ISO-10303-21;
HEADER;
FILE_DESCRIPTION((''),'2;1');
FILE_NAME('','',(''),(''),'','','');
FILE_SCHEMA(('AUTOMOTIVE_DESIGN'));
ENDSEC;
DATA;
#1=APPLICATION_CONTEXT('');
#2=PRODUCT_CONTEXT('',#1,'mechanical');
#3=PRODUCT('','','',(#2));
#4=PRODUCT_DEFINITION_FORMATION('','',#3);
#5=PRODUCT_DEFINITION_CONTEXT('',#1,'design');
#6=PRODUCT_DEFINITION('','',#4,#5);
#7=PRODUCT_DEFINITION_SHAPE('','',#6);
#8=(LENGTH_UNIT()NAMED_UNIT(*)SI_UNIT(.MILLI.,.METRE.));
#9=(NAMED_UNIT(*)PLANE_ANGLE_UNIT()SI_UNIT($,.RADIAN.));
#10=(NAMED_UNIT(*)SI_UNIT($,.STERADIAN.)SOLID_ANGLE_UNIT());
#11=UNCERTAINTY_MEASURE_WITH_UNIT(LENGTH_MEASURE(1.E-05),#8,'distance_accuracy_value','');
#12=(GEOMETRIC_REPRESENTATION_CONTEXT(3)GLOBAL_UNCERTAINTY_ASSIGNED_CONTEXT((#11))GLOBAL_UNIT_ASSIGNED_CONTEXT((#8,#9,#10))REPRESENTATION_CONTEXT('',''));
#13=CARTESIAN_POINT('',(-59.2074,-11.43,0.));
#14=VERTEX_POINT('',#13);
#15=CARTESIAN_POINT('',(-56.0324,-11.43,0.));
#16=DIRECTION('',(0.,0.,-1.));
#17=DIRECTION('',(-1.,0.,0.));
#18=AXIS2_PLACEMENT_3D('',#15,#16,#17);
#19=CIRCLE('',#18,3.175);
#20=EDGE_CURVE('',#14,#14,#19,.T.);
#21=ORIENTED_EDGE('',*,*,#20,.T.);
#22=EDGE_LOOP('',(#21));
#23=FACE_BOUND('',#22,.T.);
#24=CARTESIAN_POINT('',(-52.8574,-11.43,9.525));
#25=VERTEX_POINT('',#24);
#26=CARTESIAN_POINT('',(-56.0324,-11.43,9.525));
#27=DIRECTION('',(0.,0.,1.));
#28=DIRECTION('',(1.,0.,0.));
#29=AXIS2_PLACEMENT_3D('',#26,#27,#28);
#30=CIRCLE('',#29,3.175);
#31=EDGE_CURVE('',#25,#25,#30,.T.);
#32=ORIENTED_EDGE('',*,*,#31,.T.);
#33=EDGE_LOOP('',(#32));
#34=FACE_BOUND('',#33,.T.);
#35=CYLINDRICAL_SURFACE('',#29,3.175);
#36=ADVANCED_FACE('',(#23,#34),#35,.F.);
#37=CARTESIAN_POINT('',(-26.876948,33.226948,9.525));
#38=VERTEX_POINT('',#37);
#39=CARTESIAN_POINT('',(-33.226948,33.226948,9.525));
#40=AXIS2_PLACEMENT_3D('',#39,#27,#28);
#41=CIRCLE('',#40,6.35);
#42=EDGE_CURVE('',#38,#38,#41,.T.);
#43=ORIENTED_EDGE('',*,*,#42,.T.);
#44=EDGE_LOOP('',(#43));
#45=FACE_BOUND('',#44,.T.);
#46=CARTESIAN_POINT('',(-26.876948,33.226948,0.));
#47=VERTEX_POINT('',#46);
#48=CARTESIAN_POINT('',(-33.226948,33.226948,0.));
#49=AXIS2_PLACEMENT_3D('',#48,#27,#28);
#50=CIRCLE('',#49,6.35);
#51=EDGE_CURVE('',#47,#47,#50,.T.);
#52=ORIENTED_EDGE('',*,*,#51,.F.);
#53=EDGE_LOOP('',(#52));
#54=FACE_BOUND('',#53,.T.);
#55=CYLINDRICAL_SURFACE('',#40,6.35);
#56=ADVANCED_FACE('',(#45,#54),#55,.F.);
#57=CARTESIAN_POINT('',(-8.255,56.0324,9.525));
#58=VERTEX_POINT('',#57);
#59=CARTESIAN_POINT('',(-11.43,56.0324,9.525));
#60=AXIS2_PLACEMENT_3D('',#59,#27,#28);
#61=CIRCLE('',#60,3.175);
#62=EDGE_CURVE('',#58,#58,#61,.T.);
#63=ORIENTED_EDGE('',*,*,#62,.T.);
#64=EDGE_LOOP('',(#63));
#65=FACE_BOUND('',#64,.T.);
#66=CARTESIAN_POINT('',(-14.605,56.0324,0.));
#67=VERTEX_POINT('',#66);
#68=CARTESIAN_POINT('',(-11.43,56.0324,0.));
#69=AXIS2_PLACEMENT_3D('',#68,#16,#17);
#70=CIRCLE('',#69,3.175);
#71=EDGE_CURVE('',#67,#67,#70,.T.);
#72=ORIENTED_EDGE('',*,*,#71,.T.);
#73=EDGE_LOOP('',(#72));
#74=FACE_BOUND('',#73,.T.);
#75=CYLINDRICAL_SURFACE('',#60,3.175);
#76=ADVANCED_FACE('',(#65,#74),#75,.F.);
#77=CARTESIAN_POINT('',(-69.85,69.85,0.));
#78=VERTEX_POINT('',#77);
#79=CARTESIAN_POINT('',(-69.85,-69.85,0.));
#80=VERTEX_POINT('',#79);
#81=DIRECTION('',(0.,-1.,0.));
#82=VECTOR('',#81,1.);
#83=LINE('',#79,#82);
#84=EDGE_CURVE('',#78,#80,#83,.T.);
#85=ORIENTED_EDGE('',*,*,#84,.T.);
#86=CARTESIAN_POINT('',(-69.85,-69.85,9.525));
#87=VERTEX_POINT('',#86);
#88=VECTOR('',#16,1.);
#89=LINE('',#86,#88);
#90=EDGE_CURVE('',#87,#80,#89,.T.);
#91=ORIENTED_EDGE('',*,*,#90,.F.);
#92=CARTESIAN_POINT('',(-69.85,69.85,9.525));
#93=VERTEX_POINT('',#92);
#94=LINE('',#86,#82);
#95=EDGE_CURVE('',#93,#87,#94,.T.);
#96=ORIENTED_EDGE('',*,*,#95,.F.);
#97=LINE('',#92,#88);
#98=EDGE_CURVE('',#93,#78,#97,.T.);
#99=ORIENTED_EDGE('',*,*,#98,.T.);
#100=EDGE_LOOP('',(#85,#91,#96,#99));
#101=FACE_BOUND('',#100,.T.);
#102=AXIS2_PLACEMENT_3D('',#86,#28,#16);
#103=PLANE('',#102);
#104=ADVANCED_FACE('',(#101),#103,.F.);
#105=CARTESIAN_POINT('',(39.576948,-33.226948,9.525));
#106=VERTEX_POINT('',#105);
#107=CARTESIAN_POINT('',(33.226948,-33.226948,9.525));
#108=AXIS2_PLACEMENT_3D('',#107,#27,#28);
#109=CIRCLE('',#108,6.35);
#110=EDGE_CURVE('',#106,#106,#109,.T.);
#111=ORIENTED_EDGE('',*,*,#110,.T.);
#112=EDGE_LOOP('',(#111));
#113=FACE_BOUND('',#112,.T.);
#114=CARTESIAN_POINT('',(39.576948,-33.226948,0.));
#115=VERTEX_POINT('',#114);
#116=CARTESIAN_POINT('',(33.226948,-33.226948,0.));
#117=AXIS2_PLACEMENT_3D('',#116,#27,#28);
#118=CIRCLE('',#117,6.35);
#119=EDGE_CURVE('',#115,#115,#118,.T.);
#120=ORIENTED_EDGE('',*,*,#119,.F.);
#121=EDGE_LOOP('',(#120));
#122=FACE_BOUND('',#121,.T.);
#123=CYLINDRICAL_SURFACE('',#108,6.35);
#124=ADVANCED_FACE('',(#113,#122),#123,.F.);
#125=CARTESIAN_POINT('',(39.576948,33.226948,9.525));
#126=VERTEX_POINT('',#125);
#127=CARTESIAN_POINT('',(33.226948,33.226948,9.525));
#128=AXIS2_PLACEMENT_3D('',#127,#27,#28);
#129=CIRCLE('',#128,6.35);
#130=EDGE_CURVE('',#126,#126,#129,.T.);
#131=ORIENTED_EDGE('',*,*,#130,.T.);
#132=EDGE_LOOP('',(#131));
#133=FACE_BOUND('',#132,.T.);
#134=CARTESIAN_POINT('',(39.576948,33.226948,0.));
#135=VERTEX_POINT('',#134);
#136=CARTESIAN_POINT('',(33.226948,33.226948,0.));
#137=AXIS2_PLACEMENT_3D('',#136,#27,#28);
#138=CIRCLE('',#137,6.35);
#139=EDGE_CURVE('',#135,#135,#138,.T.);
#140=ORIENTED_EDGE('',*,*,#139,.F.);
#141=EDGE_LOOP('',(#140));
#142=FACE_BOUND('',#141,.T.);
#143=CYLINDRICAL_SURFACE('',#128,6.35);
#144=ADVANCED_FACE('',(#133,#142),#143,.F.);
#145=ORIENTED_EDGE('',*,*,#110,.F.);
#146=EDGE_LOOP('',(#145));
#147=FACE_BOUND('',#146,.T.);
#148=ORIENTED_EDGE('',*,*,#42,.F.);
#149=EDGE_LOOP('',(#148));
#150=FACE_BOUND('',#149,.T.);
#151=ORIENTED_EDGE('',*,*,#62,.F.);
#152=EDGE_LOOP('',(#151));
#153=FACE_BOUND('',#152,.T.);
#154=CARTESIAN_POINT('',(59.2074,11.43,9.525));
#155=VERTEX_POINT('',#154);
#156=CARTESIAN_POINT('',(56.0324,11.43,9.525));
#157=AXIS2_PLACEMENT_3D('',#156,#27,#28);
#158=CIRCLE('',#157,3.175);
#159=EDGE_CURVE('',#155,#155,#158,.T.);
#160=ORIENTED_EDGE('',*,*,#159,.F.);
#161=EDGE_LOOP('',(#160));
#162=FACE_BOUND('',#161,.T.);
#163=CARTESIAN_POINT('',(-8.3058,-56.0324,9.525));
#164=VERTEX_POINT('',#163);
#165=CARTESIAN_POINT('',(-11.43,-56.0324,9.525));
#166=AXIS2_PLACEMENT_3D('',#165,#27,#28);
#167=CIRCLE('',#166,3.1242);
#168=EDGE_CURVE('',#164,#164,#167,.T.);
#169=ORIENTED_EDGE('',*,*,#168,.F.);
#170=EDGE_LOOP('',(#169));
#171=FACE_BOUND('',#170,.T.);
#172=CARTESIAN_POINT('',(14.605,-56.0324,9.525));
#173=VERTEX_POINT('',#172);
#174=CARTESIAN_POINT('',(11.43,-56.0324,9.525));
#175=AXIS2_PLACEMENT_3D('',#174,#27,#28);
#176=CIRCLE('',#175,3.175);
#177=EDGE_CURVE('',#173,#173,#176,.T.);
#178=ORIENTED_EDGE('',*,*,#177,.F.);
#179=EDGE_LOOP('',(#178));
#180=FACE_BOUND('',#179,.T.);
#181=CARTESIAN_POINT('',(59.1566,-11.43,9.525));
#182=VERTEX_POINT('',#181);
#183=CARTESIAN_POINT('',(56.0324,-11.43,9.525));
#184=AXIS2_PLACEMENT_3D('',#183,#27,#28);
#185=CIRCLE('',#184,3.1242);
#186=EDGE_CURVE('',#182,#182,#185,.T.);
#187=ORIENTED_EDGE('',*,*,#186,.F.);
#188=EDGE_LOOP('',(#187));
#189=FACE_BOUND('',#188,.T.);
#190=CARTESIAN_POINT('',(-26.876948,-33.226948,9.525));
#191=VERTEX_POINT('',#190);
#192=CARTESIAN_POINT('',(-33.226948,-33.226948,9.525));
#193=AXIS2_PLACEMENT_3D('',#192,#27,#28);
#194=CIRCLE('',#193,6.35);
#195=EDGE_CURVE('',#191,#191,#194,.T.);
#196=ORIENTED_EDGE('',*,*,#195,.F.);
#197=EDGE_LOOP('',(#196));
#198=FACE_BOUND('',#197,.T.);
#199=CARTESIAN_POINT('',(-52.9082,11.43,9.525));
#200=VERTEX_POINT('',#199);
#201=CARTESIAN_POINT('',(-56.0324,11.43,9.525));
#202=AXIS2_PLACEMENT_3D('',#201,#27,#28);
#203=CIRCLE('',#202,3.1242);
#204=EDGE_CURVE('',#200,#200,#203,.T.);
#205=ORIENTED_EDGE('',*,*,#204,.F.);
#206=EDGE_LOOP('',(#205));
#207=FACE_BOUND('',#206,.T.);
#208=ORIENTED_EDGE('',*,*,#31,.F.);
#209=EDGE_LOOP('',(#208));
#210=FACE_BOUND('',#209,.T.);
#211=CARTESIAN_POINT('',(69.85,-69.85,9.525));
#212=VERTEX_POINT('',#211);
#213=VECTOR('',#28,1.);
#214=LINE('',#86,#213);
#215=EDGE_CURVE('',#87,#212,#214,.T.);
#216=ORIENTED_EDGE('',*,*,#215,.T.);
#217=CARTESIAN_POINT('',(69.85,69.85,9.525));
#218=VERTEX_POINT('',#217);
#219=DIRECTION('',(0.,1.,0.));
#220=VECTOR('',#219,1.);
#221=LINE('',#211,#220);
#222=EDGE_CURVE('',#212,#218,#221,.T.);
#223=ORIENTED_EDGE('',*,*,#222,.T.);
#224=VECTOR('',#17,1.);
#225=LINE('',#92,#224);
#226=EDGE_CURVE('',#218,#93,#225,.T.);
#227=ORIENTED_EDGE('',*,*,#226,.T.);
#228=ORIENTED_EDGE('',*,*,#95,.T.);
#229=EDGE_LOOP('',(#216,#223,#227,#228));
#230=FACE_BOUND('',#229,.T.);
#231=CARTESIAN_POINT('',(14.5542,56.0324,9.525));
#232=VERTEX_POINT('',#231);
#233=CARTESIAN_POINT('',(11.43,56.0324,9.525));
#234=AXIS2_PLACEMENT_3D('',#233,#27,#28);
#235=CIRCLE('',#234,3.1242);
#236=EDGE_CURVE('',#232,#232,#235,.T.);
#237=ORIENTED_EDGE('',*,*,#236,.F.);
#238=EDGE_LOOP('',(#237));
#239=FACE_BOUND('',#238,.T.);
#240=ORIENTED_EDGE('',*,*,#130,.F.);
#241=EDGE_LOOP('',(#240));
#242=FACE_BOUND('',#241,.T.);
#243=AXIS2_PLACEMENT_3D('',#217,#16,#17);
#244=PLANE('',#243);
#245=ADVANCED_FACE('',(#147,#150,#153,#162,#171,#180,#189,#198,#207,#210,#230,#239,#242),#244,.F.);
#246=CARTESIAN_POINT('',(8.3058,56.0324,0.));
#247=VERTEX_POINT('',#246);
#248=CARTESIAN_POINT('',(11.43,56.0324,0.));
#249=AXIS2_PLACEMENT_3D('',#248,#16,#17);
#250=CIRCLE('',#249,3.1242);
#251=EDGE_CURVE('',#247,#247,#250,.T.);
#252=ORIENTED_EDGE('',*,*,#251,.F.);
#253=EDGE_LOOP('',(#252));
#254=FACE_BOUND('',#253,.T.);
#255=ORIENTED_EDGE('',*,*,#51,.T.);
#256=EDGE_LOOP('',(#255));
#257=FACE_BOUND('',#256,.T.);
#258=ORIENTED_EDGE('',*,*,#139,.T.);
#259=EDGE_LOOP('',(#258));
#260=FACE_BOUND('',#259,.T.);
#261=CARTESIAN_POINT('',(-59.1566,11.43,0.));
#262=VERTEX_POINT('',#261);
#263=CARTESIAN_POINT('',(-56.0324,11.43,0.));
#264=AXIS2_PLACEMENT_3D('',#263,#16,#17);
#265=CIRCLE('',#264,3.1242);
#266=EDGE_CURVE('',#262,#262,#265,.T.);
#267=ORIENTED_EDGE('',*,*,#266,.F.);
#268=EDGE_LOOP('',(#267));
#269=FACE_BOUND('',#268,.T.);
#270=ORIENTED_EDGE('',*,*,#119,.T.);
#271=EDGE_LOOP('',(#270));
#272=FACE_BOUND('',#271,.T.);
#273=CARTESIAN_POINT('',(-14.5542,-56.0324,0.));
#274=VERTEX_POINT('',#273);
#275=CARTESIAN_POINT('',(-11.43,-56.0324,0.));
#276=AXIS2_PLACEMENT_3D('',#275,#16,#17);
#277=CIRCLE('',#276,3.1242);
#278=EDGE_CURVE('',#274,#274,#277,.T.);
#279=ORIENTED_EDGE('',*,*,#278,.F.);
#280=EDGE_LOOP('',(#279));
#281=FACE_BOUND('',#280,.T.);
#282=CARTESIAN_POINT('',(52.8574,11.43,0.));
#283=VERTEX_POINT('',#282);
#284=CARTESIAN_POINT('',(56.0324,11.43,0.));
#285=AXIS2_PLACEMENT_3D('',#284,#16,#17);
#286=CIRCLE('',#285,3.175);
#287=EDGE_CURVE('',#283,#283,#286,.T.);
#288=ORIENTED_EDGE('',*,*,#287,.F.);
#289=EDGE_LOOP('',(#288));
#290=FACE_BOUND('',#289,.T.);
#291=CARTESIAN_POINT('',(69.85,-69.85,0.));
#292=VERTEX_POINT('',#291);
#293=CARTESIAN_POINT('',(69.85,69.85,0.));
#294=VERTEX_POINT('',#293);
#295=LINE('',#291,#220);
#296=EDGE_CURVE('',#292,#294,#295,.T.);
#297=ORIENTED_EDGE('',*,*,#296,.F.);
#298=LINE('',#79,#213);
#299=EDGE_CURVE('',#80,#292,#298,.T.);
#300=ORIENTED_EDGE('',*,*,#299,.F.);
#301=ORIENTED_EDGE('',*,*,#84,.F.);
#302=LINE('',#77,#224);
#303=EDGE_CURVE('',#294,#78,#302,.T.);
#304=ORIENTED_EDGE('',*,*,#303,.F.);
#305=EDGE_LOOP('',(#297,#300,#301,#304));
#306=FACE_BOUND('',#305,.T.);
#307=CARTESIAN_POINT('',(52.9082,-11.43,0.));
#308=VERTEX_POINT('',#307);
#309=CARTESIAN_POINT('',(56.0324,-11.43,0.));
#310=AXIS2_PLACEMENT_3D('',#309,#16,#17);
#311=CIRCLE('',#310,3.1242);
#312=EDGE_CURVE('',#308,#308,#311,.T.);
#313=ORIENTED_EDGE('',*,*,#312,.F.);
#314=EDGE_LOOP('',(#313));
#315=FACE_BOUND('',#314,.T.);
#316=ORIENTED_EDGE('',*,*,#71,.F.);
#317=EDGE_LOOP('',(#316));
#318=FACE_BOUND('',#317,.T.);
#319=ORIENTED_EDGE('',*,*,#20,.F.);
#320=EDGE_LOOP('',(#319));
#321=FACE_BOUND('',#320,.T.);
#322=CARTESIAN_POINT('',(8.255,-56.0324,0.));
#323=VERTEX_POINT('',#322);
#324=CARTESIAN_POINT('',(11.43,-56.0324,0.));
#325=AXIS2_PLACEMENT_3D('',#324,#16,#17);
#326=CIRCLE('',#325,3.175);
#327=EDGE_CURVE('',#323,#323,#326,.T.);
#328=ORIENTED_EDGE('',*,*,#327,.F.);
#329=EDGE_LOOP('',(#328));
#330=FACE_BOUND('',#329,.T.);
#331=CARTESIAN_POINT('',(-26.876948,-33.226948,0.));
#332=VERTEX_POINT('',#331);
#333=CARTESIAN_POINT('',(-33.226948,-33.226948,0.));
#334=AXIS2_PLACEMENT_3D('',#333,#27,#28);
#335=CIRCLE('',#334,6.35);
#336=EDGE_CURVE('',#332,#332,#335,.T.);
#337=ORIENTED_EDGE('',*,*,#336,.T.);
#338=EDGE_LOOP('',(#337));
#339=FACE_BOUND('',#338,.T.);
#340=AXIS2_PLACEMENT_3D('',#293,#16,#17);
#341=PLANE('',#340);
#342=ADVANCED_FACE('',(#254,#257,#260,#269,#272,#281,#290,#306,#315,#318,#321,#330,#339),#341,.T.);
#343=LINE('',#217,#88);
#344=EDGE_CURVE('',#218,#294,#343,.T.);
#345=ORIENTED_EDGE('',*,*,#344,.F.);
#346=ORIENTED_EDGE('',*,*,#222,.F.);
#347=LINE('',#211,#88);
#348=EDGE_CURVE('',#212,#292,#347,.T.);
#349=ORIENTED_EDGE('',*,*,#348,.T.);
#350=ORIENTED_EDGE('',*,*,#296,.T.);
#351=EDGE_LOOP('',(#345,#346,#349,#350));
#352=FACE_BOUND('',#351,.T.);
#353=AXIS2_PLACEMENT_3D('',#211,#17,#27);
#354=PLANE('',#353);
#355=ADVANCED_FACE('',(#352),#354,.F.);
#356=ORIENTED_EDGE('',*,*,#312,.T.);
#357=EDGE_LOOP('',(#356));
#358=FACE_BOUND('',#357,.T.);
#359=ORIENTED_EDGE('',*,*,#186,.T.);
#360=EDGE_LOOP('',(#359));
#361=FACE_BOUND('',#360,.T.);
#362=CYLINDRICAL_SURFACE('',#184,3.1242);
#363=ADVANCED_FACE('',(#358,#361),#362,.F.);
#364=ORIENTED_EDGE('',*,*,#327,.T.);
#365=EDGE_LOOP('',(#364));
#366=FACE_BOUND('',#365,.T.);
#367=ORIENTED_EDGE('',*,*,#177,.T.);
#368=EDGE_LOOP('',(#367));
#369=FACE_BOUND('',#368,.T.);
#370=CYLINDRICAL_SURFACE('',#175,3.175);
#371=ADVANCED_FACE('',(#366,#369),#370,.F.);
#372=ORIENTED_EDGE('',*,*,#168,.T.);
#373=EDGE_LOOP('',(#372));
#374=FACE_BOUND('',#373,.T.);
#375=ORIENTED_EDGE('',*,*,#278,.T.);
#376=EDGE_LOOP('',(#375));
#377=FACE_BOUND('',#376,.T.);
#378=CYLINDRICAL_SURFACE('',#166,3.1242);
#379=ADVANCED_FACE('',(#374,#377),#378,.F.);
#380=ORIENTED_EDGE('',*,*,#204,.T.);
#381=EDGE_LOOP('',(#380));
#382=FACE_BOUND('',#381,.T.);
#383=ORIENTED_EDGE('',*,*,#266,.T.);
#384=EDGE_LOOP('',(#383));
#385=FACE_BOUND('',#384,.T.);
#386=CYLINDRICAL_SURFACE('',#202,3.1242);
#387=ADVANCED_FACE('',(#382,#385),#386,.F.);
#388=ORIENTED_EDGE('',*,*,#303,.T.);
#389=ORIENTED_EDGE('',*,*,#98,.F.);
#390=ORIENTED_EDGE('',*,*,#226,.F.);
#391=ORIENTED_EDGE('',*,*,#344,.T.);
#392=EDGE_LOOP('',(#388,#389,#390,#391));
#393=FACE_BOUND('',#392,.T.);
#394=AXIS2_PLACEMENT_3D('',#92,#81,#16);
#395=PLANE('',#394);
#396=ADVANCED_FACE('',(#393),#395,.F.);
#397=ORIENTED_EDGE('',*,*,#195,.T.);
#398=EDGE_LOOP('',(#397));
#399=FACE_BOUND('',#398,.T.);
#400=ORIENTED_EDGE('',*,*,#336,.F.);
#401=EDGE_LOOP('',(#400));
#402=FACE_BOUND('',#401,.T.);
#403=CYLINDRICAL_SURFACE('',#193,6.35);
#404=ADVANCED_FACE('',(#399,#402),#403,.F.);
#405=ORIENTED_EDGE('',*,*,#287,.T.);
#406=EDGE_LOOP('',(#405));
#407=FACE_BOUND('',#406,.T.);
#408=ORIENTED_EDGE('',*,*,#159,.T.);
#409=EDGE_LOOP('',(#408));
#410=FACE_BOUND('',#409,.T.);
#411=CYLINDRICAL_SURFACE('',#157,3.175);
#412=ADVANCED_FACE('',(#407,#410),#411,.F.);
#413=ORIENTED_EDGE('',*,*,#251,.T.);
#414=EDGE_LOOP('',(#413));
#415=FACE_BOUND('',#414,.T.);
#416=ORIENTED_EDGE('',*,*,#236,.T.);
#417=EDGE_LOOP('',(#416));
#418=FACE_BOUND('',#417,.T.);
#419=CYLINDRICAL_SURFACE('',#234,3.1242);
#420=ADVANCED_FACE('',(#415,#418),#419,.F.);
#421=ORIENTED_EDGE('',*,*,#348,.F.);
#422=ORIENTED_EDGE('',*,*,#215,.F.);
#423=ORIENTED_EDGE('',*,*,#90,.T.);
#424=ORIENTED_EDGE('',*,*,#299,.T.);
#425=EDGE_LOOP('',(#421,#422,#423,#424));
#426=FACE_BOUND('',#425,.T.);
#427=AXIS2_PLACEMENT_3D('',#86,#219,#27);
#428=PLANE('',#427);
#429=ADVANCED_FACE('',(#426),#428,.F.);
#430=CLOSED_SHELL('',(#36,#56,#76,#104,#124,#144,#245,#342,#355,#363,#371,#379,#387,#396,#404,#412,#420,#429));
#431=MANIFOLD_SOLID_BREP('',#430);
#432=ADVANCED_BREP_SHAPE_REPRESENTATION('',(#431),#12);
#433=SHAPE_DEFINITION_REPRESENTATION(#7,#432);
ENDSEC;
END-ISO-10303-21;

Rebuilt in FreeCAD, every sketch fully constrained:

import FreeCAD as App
import Part
import Sketcher
from FreeCAD import Vector
Q = App.Units.Quantity


def add_polygon(sketch, points):
    """Adds a closed chain of lines whose ends are joined by coincident constraints."""
    first, n = sketch.GeometryCount, len(points)
    for a, b in zip(points, points[1:] + points[:1]):
        sketch.addGeometry(Part.LineSegment(App.Vector(*a, 0), App.Vector(*b, 0)), False)
    for i in range(n):
        sketch.addConstraint(Sketcher.Constraint("Coincident", first + i, 2, first + (i + 1) % n, 1))

doc = App.newDocument("Part")
body = doc.addObject("PartDesign::Body", "Body")

# Sketch on XY plane
sketch1 = body.newObject("Sketcher::SketchObject", "Sketch")
sketch1.AttachmentSupport = (doc.getObject("XY_Plane"), [""])
sketch1.MapMode = "FlatFace"
add_polygon(sketch1, [(-69.85, 69.85), (-69.85, -69.85), (69.85, -69.85), (69.85, 69.85)])  # lines 0-3
sketch1.addConstraint(Sketcher.Constraint("Vertical", 0))
sketch1.addConstraint(Sketcher.Constraint("Horizontal", 1))
sketch1.addConstraint(Sketcher.Constraint("Vertical", 2))
sketch1.addConstraint(Sketcher.Constraint("Horizontal", 3))
sketch1.addConstraint(Sketcher.Constraint("Symmetric", 0, 2, 2, 2, -1, 1))
sketch1.addConstraint(Sketcher.Constraint("Equal", 3, 0))
sketch1.addConstraint(Sketcher.Constraint("DistanceX", 1, 1, 1, 2, Q("5.5 in")))
pad1 = body.newObject("PartDesign::Pad", "Pad")
pad1.Profile = sketch1
pad1.Length = Q("0.375 in")

# Sketch on XY plane
sketch2 = body.newObject("Sketcher::SketchObject", "Sketch001")
sketch2.AttachmentSupport = (doc.getObject("XY_Plane"), [""])
sketch2.MapMode = "FlatFace"
sketch2.AttachmentOffset = App.Placement(Vector(0, 0, 0.375 * 25.4), App.Rotation())
sketch2.addGeometry(Part.Circle(Vector(-33.226948, 33.226948, 0), Vector(0, 0, 1), 6.35), False)
sketch2.addConstraint(Sketcher.Constraint("Diameter", 0, Q("0.5 in")))
sketch2.addConstraint(Sketcher.Constraint("DistanceX", 0, 3, -1, 1, 33.226948))
sketch2.addConstraint(Sketcher.Constraint("DistanceY", -1, 1, 0, 3, 33.226948))
doc.recompute()
hole = body.newObject("PartDesign::Hole", "Hole")
hole.Profile = sketch2
hole.ThreadType = "None"
hole.Diameter = Q("0.5 in")
hole.DepthType = "ThroughAll"

# Sketch on YZ plane
sketch3 = body.newObject("Sketcher::SketchObject", "Sketch002")
sketch3.AttachmentSupport = (doc.getObject("YZ_Plane"), [""])
sketch3.MapMode = "FlatFace"
sketch3.AttachmentOffset = App.Placement(Vector(0, 0, -2.206 * 25.4), App.Rotation())
add_polygon(sketch3, [(11.43, -26.134209), (11.43, 9.525), (8.3058, 9.525), (8.3058, -24.257)])  # lines 0-3
sketch3.addGeometry(Part.LineSegment(Vector(11.43, 9.525, 0), Vector(11.43, -26.134209, 0)), True)  # axis
sketch3.addConstraint(Sketcher.Constraint("Vertical", 0))
sketch3.addConstraint(Sketcher.Constraint("Horizontal", 1))
sketch3.addConstraint(Sketcher.Constraint("Vertical", 2))
sketch3.addConstraint(Sketcher.Constraint("Vertical", 4))
sketch3.addConstraint(Sketcher.Constraint("Coincident", 4, 1, 0, 2))
sketch3.addConstraint(Sketcher.Constraint("Equal", 0, 4))
sketch3.addConstraint(Sketcher.Constraint("Angle", 3, Q("-31 deg")))
sketch3.addConstraint(Sketcher.Constraint("DistanceY", 2, 2, 2, 1, Q("1.33 in")))
sketch3.addConstraint(Sketcher.Constraint("DistanceX", 1, 2, 1, 1, Q("0.123 in")))
sketch3.addConstraint(Sketcher.Constraint("DistanceX", -1, 1, 0, 2, Q("0.45 in")))
sketch3.addConstraint(Sketcher.Constraint("DistanceY", -1, 1, 0, 2, Q("0.375 in")))
groove = body.newObject("PartDesign::Groove", "Groove")
groove.Profile = sketch3
groove.ReferenceAxis = (sketch3, ["Axis0"])
groove.Angle = 360

# Sketch on YZ plane
sketch4 = body.newObject("Sketcher::SketchObject", "Sketch003")
sketch4.AttachmentSupport = (doc.getObject("YZ_Plane"), [""])
sketch4.MapMode = "FlatFace"
sketch4.AttachmentOffset = App.Placement(Vector(0, 0, -2.206 * 25.4), App.Rotation())
add_polygon(sketch4, [(-11.43, -26.164732), (-11.43, 9.525), (-14.605, 9.525), (-14.605, -24.257)])  # lines 0-3
sketch4.addGeometry(Part.LineSegment(Vector(-11.43, 9.525, 0), Vector(-11.43, -26.164732, 0)), True)  # axis
sketch4.addConstraint(Sketcher.Constraint("Vertical", 0))
sketch4.addConstraint(Sketcher.Constraint("Horizontal", 1))
sketch4.addConstraint(Sketcher.Constraint("Vertical", 2))
sketch4.addConstraint(Sketcher.Constraint("Vertical", 4))
sketch4.addConstraint(Sketcher.Constraint("Coincident", 4, 1, 0, 2))
sketch4.addConstraint(Sketcher.Constraint("Equal", 0, 4))
sketch4.addConstraint(Sketcher.Constraint("Angle", 3, Q("-31 deg")))
sketch4.addConstraint(Sketcher.Constraint("DistanceY", 2, 2, 2, 1, Q("1.33 in")))
sketch4.addConstraint(Sketcher.Constraint("DistanceX", 1, 2, 1, 1, Q("0.125 in")))
sketch4.addConstraint(Sketcher.Constraint("DistanceX", 0, 2, -1, 1, Q("0.45 in")))
sketch4.addConstraint(Sketcher.Constraint("DistanceY", -1, 1, 0, 2, Q("0.375 in")))
groove2 = body.newObject("PartDesign::Groove", "Groove001")
groove2.Profile = sketch4
groove2.ReferenceAxis = (sketch4, ["Axis0"])
groove2.Angle = 360
doc.recompute()

polarpattern = body.newObject("PartDesign::PolarPattern", "PolarPattern")
polarpattern.Originals = [hole, groove, groove2]
polarpattern.Axis = (doc.getObject("Z_Axis"), [""])
polarpattern.Angle = 360
polarpattern.Occurrences = 4
body.Tip = polarpattern

doc.recompute()
